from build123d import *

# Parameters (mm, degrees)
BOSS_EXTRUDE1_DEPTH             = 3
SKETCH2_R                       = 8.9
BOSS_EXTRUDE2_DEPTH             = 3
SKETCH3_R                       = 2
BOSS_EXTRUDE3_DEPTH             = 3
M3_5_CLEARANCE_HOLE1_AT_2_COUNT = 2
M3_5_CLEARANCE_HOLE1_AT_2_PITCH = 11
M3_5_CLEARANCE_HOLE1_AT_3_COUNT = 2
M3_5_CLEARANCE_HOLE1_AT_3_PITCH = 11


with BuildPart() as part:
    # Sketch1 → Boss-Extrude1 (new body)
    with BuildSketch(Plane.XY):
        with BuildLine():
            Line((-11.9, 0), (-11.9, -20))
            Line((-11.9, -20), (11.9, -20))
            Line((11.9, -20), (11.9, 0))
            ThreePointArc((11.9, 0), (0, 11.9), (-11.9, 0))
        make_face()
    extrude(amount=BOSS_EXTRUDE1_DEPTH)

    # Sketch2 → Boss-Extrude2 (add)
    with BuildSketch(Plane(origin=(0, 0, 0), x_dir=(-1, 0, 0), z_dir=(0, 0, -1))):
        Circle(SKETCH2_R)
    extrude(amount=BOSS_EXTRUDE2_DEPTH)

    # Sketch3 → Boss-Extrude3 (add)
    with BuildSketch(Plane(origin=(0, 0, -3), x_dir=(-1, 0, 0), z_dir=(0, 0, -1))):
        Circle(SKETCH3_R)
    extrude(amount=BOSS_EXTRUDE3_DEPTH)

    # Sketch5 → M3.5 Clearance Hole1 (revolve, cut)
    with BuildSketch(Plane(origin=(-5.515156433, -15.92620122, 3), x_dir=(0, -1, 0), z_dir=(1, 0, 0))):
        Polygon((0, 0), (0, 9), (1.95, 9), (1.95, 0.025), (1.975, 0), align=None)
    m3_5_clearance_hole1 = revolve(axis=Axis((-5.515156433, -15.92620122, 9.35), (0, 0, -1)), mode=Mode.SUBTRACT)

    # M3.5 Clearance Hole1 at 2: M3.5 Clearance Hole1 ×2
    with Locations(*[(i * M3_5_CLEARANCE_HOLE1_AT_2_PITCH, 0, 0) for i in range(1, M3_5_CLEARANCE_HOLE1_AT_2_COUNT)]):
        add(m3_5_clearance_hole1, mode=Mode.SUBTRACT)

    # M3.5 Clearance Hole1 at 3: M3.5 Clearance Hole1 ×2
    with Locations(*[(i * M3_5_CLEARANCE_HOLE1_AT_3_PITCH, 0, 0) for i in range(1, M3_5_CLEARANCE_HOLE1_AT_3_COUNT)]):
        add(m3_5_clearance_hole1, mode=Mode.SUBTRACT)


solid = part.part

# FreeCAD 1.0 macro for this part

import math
import FreeCAD as App
import Part
import Sketcher
from FreeCAD import Vector
Q = App.Units.Quantity


def add_polygon(sketch, points):
    """Adds a closed chain of lines whose ends are joined by coincident constraints."""
    first, n = sketch.GeometryCount, len(points)
    for a, b in zip(points, points[1:] + points[:1]):
        sketch.addGeometry(Part.LineSegment(App.Vector(*a, 0), App.Vector(*b, 0)), False)
    for i in range(n):
        sketch.addConstraint(Sketcher.Constraint("Coincident", first + i, 2, first + (i + 1) % n, 1))

doc = App.newDocument("Part")
body = doc.addObject("PartDesign::Body", "Body")

sketch1 = body.newObject("Sketcher::SketchObject", "Sketch")
sketch1.AttachmentSupport = (doc.getObject("XY_Plane"), [""])
sketch1.MapMode = "FlatFace"
sketch1.addGeometry([
    Part.LineSegment(Vector(-12, 0, 0), Vector(-12, -20, 0)),
    Part.LineSegment(Vector(-12, -20, 0), Vector(12, -20, 0)),
    Part.LineSegment(Vector(12, -20, 0), Vector(12, 0, 0)),
    Part.ArcOfCircle(Part.Circle(Vector(0, 0, 0), Vector(0, 0, 1), 12), math.radians(0), math.radians(180)),
], False)
sketch1.addConstraint([
    Sketcher.Constraint("Coincident", 0, 2, 1, 1),
    Sketcher.Constraint("Coincident", 1, 2, 2, 1),
    Sketcher.Constraint("Tangent", 2, 2, 3, 1),
    Sketcher.Constraint("Tangent", 3, 2, 0, 1),
    Sketcher.Constraint("Vertical", 0),
    Sketcher.Constraint("Horizontal", 1),
    Sketcher.Constraint("Vertical", 2),
    Sketcher.Constraint("Coincident", 3, 3, -1, 1),
    Sketcher.Constraint("Radius", 3, Q("11.9 mm")),
    Sketcher.Constraint("DistanceY", 0, 2, 0, 1, Q("20 mm")),
])
pad1 = body.newObject("PartDesign::Pad", "Pad")
pad1.Profile = sketch1
pad1.Length = 3

sketch2 = body.newObject("Sketcher::SketchObject", "Sketch001")
sketch2.AttachmentSupport = (doc.getObject("XY_Plane"), [""])
sketch2.MapMode = "FlatFace"
sketch2.addGeometry(Part.Circle(Vector(0, 0, 0), Vector(0, 0, 1), 9), False)
sketch2.addConstraint([
    Sketcher.Constraint("Coincident", 0, 3, -1, 1),
    Sketcher.Constraint("Diameter", 0, Q("17.8 mm")),
])
pad2 = body.newObject("PartDesign::Pad", "Pad001")
pad2.Profile = sketch2
pad2.Length = 3
pad2.Reversed = True

sketch3 = body.newObject("Sketcher::SketchObject", "Sketch002")
sketch3.AttachmentSupport = (doc.getObject("XY_Plane"), [""])
sketch3.MapMode = "FlatFace"
sketch3.AttachmentOffset = App.Placement(Vector(0, 0, -3), App.Rotation())
sketch3.addGeometry(Part.Circle(Vector(0, 0, 0), Vector(0, 0, 1), 2), False)
sketch3.addConstraint([
    Sketcher.Constraint("Coincident", 0, 3, -1, 1),
    Sketcher.Constraint("Diameter", 0, Q("4 mm")),
])
pad3 = body.newObject("PartDesign::Pad", "Pad002")
pad3.Profile = sketch3
pad3.Length = 3
pad3.Reversed = True

sketch4 = body.newObject("Sketcher::SketchObject", "Sketch003")
sketch4.AttachmentSupport = (doc.getObject("YZ_Plane"), [""])
sketch4.MapMode = "FlatFace"
sketch4.AttachmentOffset = App.Placement(Vector(0, 0, -5.515156), App.Rotation())
add_polygon(sketch4, [(-15.926, -6), (-15.926, 3), (-17.901, 3), (-17.876, 2.975), (-17.876, -6)])
sketch4.addGeometry(Part.LineSegment(Vector(-15.926, 3, 0), Vector(-15.926, -6, 0)), True)
sketch4.addConstraint([
    Sketcher.Constraint("Vertical", 0),
    Sketcher.Constraint("Horizontal", 1),
    Sketcher.Constraint("Vertical", 3),
    Sketcher.Constraint("Horizontal", 4),
    Sketcher.Constraint("Vertical", 5),
    Sketcher.Constraint("Coincident", 5, 1, 0, 2),
    Sketcher.Constraint("Horizontal", 3, 2, 5, 2),
    Sketcher.Constraint("DistanceY", 0, 1, 0, 2, Q("9 mm")),
    Sketcher.Constraint("Angle", 2, Q("-45 deg")),
    Sketcher.Constraint("DistanceY", -1, 1, 0, 2, Q("3 mm")),
    Sketcher.Constraint("DistanceX", 4, 1, 4, 2, Q("1.95 mm")),
    Sketcher.Constraint("DistanceX", 1, 2, 1, 1, Q("1.975 mm")),
    Sketcher.Constraint("DistanceX", 0, 2, -1, 1, Q("15.926201 mm")),
])
groove = body.newObject("PartDesign::Groove", "Groove")
groove.Profile = sketch4
groove.ReferenceAxis = (sketch4, ["Axis0"])
groove.Angle = 360
doc.recompute()

linearpattern = body.newObject("PartDesign::LinearPattern", "LinearPattern")
linearpattern.Originals = [groove]
linearpattern.Direction = (doc.getObject("X_Axis"), [""])
linearpattern.Mode = "offset"
linearpattern.Offset = 11
linearpattern.Occurrences = 2
body.Tip = linearpattern
doc.recompute()

linearpattern2 = body.newObject("PartDesign::LinearPattern", "LinearPattern001")
linearpattern2.Originals = [groove]
linearpattern2.Direction = (doc.getObject("X_Axis"), [""])
linearpattern2.Mode = "offset"
linearpattern2.Offset = 11
linearpattern2.Occurrences = 2
body.Tip = linearpattern2

doc.recompute()
